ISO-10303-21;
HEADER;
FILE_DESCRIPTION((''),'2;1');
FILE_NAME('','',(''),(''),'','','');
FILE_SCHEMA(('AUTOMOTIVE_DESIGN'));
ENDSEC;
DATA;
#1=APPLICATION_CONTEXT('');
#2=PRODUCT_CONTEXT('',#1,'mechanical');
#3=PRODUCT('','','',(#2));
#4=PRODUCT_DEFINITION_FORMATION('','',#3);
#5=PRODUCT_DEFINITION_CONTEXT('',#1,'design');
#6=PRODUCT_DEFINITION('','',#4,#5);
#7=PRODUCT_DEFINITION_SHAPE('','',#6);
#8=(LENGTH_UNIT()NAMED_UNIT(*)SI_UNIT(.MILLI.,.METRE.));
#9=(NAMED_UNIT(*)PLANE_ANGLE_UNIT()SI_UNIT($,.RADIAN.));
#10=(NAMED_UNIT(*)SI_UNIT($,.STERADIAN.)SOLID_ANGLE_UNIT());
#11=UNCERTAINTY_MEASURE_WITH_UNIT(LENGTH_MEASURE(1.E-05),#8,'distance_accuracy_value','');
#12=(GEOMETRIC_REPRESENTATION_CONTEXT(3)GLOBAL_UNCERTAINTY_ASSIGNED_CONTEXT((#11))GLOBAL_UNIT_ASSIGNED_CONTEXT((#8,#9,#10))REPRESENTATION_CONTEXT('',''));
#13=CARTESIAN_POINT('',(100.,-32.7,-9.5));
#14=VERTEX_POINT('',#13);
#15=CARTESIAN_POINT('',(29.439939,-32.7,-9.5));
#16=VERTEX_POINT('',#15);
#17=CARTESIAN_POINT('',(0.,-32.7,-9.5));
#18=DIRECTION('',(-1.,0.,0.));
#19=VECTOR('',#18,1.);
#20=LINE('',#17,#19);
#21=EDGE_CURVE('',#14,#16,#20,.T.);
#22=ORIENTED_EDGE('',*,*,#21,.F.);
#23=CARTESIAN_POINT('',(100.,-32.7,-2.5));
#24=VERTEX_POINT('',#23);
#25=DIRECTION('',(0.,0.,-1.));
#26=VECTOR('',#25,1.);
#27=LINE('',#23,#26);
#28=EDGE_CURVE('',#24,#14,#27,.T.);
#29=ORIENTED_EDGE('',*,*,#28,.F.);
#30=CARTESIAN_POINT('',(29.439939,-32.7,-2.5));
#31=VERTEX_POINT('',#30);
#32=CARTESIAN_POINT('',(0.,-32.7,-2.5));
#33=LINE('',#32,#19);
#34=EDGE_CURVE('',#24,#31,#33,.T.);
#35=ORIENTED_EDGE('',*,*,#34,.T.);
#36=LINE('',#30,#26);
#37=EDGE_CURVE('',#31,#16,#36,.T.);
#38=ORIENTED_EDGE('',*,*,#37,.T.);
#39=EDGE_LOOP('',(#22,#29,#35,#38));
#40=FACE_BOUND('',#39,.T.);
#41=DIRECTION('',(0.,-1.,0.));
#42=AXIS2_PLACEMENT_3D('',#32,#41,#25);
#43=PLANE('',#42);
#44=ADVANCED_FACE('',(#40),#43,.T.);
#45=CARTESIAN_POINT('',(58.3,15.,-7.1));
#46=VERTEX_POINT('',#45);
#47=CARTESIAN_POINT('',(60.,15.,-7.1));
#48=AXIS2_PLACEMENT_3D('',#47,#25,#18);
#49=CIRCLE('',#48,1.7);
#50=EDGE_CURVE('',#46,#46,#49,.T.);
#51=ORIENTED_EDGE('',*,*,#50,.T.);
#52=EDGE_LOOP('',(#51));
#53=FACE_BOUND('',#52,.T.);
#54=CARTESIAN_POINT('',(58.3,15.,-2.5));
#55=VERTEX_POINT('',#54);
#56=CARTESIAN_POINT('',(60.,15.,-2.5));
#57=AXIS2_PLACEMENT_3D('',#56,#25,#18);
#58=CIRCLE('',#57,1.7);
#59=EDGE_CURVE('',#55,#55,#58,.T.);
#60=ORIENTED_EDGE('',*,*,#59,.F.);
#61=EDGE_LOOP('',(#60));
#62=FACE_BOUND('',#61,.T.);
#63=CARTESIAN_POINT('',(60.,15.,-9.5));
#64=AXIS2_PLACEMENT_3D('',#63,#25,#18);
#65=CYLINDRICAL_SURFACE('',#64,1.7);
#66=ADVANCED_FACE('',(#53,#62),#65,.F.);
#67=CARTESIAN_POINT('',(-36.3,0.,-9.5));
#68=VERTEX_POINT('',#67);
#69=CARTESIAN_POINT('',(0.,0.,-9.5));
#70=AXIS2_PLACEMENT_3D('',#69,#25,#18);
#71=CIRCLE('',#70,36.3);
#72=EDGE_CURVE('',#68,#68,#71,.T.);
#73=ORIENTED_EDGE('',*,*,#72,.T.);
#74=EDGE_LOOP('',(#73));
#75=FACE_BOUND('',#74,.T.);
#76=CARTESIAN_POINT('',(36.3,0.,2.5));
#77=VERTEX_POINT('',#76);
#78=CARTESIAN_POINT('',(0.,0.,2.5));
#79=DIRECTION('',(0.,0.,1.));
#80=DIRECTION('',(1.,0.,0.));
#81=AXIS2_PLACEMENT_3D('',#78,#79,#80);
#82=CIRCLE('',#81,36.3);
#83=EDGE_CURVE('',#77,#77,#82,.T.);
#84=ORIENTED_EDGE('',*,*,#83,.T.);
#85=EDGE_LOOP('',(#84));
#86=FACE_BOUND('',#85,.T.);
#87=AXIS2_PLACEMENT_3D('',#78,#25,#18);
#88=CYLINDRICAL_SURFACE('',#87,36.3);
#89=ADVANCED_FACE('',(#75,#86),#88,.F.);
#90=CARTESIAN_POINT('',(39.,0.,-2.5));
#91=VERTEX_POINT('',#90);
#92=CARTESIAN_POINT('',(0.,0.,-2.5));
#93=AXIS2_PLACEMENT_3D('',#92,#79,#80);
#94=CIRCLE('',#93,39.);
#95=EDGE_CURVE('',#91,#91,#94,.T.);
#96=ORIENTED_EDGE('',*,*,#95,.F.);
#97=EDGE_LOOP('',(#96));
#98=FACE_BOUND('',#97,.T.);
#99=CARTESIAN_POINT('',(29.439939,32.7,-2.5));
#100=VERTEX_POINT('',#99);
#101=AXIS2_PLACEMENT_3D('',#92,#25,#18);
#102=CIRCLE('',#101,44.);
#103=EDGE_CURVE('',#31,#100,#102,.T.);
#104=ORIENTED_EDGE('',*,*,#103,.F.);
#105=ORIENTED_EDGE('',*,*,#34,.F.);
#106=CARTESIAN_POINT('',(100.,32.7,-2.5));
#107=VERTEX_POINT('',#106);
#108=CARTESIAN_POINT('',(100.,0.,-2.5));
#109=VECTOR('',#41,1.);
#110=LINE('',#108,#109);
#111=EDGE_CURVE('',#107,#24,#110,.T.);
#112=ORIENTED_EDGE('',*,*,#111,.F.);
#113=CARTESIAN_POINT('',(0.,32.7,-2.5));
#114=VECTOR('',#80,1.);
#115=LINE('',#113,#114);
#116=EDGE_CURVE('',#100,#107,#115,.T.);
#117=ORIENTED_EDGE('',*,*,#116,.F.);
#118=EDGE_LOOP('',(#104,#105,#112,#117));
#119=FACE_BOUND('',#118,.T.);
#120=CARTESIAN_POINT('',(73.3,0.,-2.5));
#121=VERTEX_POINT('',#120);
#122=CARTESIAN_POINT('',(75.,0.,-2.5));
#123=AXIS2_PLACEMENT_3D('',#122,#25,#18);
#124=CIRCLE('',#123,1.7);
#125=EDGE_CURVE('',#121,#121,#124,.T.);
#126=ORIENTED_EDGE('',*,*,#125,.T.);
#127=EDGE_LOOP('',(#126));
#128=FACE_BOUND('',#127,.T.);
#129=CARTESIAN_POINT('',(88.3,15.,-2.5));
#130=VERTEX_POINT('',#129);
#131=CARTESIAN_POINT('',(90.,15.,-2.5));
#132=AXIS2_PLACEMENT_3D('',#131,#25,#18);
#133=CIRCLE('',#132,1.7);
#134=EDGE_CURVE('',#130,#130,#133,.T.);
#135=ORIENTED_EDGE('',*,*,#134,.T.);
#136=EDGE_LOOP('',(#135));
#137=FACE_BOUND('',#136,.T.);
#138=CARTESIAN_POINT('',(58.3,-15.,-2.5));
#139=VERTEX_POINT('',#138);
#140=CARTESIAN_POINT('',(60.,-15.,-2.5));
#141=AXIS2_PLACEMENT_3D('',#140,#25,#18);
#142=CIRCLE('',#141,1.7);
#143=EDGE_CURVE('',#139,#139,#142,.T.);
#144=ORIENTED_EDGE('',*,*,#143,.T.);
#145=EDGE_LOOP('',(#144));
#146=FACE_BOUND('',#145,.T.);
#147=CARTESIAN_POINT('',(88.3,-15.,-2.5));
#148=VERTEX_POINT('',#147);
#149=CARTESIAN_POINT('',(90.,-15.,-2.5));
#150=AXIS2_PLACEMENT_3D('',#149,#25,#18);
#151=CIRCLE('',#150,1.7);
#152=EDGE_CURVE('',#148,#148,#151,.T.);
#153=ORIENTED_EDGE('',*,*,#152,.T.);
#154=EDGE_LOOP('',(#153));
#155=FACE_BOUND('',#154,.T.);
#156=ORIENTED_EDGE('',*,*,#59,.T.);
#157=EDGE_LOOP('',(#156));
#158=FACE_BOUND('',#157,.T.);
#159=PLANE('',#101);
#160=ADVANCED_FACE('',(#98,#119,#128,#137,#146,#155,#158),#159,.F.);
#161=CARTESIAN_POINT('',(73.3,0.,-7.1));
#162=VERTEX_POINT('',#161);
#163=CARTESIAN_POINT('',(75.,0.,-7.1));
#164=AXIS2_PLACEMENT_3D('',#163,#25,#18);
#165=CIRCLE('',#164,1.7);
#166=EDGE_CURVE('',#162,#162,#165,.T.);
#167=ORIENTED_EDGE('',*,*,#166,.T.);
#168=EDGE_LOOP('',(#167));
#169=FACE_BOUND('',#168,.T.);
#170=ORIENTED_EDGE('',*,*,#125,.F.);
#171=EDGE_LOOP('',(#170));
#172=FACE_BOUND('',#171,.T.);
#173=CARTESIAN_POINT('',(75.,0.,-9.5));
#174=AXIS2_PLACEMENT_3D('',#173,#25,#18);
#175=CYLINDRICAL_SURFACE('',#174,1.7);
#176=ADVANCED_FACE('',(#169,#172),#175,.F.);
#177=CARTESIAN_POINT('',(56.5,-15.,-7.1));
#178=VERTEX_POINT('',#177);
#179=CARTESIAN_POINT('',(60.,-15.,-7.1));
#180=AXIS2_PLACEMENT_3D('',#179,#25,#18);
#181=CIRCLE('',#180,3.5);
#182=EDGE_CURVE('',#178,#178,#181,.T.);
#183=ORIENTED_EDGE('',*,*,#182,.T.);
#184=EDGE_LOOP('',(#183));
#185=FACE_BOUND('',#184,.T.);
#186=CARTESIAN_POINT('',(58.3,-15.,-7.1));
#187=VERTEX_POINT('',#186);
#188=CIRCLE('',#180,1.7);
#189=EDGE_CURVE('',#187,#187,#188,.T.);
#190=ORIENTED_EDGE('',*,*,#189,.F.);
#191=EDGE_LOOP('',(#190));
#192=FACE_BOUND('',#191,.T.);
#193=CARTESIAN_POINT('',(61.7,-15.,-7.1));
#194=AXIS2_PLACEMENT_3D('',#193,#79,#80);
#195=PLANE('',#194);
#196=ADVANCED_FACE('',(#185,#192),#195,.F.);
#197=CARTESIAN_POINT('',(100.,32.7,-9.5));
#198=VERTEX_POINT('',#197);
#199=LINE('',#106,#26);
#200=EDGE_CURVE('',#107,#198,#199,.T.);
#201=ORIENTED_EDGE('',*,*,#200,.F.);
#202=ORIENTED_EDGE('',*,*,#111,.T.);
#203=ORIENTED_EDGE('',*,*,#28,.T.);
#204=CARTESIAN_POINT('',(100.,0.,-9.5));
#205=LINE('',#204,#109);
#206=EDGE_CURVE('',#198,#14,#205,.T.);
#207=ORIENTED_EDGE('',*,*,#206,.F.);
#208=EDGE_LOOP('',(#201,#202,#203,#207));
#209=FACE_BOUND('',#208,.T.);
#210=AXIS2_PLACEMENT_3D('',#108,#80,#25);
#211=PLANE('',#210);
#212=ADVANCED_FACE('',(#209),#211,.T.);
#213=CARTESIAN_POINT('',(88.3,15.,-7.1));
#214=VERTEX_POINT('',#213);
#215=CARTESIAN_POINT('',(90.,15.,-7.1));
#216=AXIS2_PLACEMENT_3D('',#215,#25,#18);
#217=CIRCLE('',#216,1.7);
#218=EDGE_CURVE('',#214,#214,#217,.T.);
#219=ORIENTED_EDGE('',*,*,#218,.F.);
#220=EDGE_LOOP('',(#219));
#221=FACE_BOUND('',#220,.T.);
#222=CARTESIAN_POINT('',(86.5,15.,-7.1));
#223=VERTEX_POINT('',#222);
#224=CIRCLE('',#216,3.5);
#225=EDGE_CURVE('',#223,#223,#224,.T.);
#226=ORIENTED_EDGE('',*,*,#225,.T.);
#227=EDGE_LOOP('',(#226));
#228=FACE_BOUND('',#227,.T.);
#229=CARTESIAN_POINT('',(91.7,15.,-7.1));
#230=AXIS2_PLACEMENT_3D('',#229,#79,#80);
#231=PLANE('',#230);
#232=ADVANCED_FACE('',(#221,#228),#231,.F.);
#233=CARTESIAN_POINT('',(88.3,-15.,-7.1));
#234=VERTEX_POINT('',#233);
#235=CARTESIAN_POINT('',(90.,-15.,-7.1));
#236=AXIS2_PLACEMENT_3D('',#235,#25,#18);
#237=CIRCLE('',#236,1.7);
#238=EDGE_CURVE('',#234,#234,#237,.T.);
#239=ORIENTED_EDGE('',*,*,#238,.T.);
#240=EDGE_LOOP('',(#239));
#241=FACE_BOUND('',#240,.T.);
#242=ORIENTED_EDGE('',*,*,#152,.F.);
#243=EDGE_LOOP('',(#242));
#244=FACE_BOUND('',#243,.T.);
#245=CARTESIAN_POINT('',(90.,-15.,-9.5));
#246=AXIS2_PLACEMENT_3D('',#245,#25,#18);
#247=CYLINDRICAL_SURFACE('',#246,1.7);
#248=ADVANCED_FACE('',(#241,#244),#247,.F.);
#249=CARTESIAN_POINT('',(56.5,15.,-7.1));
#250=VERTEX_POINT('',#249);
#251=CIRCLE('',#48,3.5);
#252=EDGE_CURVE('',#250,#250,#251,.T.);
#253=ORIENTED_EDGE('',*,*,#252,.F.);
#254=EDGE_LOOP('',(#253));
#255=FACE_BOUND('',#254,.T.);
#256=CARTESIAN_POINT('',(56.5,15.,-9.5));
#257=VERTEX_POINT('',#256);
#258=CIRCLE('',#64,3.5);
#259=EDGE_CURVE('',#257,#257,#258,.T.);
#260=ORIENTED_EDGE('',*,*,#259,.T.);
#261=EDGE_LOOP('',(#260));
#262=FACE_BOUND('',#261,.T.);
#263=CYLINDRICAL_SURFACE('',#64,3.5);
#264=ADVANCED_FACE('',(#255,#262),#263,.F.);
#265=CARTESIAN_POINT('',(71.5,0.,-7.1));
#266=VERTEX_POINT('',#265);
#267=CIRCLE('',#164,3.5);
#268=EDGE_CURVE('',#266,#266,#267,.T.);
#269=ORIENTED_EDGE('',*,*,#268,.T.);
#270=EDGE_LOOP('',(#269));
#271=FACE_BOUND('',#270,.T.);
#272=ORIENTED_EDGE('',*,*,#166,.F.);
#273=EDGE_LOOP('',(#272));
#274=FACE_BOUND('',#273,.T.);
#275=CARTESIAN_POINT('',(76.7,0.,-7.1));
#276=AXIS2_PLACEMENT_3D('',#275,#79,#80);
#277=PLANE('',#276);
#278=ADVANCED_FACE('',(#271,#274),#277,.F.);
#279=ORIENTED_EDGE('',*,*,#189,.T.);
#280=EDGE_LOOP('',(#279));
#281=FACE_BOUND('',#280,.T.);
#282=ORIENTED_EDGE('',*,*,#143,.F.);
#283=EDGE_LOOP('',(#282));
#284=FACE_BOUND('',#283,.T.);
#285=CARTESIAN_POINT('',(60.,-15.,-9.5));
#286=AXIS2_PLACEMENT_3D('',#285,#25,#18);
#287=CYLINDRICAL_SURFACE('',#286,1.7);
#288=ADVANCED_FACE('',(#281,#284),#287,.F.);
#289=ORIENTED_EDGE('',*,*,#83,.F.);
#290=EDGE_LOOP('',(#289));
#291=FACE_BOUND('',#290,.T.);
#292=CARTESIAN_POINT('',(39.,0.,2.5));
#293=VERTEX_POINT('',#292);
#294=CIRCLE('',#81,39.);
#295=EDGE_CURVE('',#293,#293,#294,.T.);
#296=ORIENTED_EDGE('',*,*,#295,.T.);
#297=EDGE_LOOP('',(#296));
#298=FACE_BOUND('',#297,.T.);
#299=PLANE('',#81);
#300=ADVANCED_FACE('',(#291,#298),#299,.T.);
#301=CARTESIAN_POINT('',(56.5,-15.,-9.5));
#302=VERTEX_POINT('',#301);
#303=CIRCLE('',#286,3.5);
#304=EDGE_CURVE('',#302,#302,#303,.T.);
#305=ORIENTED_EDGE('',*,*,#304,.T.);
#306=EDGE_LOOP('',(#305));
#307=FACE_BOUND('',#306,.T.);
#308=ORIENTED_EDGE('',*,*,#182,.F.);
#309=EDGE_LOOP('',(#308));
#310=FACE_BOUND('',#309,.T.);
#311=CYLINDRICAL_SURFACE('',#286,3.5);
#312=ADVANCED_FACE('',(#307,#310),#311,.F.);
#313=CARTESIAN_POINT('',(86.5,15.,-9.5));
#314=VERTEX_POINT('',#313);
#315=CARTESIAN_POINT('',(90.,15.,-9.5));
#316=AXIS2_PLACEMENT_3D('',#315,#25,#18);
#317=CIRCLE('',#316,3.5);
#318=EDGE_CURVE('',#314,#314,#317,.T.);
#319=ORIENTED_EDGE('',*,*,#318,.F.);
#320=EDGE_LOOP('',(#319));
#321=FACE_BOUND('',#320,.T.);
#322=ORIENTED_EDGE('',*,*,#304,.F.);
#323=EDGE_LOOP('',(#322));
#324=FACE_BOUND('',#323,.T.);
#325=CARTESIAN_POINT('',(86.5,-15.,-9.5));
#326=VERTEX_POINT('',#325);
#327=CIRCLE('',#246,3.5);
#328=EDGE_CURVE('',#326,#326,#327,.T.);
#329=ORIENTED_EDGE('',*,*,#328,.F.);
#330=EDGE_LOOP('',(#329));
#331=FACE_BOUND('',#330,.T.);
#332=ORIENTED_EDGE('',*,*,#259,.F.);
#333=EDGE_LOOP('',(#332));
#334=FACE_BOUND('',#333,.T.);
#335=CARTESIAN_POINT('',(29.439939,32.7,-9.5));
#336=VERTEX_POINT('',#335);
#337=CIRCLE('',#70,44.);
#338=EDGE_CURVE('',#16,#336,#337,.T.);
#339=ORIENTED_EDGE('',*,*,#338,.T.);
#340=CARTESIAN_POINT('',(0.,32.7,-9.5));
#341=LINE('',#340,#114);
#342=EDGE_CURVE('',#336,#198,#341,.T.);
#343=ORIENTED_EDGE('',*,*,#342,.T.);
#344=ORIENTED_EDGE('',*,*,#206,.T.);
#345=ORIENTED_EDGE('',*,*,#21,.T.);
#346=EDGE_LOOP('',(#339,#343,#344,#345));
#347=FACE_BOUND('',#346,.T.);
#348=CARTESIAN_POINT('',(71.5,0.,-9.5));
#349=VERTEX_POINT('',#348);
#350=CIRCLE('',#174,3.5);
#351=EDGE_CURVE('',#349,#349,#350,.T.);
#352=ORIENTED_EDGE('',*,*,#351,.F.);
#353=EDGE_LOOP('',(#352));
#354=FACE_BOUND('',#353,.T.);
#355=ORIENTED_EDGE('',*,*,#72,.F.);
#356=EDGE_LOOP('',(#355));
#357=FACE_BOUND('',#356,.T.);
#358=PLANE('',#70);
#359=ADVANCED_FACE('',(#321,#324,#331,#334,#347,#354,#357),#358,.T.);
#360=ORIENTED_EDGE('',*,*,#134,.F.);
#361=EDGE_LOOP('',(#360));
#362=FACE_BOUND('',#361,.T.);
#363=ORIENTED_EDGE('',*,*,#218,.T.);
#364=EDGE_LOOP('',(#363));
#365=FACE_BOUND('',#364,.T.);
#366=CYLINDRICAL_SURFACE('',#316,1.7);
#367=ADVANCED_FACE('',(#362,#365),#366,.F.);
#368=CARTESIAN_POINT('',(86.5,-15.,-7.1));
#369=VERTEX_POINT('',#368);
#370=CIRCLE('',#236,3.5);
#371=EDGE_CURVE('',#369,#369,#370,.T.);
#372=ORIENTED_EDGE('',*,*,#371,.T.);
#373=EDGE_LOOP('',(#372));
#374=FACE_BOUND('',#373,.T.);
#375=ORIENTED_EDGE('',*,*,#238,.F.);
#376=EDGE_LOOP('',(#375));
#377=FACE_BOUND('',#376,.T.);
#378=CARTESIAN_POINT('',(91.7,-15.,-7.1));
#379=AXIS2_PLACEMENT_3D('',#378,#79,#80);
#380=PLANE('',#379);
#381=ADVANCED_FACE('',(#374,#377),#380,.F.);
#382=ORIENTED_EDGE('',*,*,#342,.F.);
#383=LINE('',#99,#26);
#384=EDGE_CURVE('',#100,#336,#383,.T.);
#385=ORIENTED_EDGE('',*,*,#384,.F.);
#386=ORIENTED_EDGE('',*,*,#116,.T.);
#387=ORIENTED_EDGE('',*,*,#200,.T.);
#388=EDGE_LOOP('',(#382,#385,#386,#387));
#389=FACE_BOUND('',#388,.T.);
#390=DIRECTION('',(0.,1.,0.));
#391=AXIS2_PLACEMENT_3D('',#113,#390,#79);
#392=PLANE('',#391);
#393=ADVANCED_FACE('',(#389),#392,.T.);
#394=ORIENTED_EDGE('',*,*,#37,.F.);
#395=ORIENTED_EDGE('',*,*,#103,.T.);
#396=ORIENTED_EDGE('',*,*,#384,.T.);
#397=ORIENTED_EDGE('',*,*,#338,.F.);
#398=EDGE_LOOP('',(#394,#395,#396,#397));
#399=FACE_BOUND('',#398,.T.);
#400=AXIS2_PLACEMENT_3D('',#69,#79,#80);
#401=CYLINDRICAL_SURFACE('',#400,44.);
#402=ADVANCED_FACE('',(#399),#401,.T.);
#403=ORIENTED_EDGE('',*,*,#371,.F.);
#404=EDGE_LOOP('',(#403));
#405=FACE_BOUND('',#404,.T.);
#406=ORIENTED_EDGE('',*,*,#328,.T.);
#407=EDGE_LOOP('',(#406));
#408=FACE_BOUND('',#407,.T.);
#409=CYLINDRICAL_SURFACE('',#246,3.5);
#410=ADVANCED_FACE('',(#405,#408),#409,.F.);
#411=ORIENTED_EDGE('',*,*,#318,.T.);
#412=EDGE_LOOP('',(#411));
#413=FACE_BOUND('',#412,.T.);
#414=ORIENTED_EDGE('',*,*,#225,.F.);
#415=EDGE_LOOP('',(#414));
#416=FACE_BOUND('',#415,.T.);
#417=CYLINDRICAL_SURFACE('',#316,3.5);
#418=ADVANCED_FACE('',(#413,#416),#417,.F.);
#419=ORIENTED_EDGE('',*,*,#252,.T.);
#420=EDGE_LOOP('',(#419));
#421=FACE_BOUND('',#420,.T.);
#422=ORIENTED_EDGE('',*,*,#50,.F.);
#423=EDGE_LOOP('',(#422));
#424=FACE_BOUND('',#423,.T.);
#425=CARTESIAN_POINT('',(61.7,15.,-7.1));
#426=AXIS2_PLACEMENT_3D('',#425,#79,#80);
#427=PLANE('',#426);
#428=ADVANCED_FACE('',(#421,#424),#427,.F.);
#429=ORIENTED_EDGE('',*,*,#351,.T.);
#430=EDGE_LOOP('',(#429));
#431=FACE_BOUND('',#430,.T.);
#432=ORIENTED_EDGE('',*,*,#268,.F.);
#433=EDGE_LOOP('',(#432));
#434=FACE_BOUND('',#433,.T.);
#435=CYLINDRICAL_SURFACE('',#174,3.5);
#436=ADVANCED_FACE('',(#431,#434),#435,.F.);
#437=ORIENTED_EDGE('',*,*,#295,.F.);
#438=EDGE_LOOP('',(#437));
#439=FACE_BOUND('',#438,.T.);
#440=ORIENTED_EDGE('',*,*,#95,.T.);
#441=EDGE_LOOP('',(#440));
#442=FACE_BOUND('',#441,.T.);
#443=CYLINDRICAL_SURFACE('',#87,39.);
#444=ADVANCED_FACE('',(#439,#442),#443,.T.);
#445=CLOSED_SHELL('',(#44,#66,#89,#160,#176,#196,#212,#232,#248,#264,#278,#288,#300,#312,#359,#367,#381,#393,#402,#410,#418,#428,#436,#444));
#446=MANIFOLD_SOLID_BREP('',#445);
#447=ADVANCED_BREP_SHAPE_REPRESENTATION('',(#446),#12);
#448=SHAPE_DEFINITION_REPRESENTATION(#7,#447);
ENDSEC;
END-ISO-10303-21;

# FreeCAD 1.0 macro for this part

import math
import FreeCAD as App
import Part
import Sketcher

doc = App.newDocument("Part")
body = doc.addObject("PartDesign::Body", "Body")

sketch1 = body.newObject("Sketcher::SketchObject", "Sketch")
sketch1.AttachmentSupport = (doc.getObject("XY_Plane"), [""])
sketch1.MapMode = "FlatFace"
sketch1.addGeometry([
    Part.Circle(App.Vector(0, 0, 0), App.Vector(0, 0, 1), 39),
    Part.Circle(App.Vector(0, 0, 0), App.Vector(0, 0, 1), 36),
], False)
sketch1.addConstraint([
    Sketcher.Constraint("Coincident", 0, 3, -1, 1),
    Sketcher.Constraint("Coincident", 1, 3, -1, 1),
    Sketcher.Constraint("Diameter", 0, 78.0),
    Sketcher.Constraint("Diameter", 1, 72.6),
])
pad1 = body.newObject("PartDesign::Pad", "Pad")
pad1.Profile = sketch1
pad1.Length = 5
pad1.Midplane = True

sketch2 = body.newObject("Sketcher::SketchObject", "Sketch001")
sketch2.AttachmentSupport = (doc.getObject("XY_Plane"), [""])
sketch2.MapMode = "FlatFace"
sketch2.AttachmentOffset = App.Placement(App.Vector(0, 0, -9.5), App.Rotation())
sketch2.addGeometry([
    Part.Circle(App.Vector(0, 0, 0), App.Vector(0, 0, 1), 44),
    Part.Circle(App.Vector(0, 0, 0), App.Vector(0, 0, 1), 36),
], False)
sketch2.addConstraint([
    Sketcher.Constraint("Coincident", 0, 3, -1, 1),
    Sketcher.Constraint("Coincident", 1, 3, -1, 1),
    Sketcher.Constraint("Diameter", 0, 88.0),
    Sketcher.Constraint("Diameter", 1, 72.6),
])
pad2 = body.newObject("PartDesign::Pad", "Pad001")
pad2.Profile = sketch2
pad2.Length = 7

sketch3 = body.newObject("Sketcher::SketchObject", "Sketch002")
sketch3.AttachmentSupport = (doc.getObject("XY_Plane"), [""])
sketch3.MapMode = "FlatFace"
sketch3.AttachmentOffset = App.Placement(App.Vector(0, 0, -9.5), App.Rotation())
sketch3.addGeometry([
    Part.ArcOfCircle(Part.Circle(App.Vector(0, 0, 0), App.Vector(0, 0, 1), 44), math.radians(-48), math.radians(48)),
    Part.LineSegment(App.Vector(29, 33, 0), App.Vector(100, 33, 0)),
    Part.LineSegment(App.Vector(100, 33, 0), App.Vector(100, -33, 0)),
    Part.LineSegment(App.Vector(100, -33, 0), App.Vector(29, -33, 0)),
], False)
sketch3.addConstraint([
    Sketcher.Constraint("Coincident", 0, 2, 1, 1),
    Sketcher.Constraint("Coincident", 1, 2, 2, 1),
    Sketcher.Constraint("Coincident", 2, 2, 3, 1),
    Sketcher.Constraint("Coincident", 3, 2, 0, 1),
    Sketcher.Constraint("Horizontal", 1),
    Sketcher.Constraint("Vertical", 2),
    Sketcher.Constraint("Horizontal", 3),
    Sketcher.Constraint("Coincident", 0, 3, -1, 1),
    Sketcher.Constraint("Vertical", 0, 2, 3, 2),
    Sketcher.Constraint("Radius", 0, 44.0),
    Sketcher.Constraint("DistanceY", 2, 2, 2, 1, 65.4),
    Sketcher.Constraint("DistanceX", -1, 1, 1, 2, 100.0),
])
pad3 = body.newObject("PartDesign::Pad", "Pad002")
pad3.Profile = sketch3
pad3.Length = 7

sketch4 = body.newObject("Sketcher::SketchObject", "Sketch003")
sketch4.AttachmentSupport = (doc.getObject("XY_Plane"), [""])
sketch4.MapMode = "FlatFace"
sketch4.AttachmentOffset = App.Placement(App.Vector(0, 0, -9.5), App.Rotation())
sketch4.addGeometry([
    Part.Circle(App.Vector(75, 0, 0), App.Vector(0, 0, 1), 1.7),
    Part.Circle(App.Vector(90, 15, 0), App.Vector(0, 0, 1), 1.7),
    Part.Circle(App.Vector(60, -15, 0), App.Vector(0, 0, 1), 1.7),
    Part.Circle(App.Vector(60, 15, 0), App.Vector(0, 0, 1), 1.7),
    Part.Circle(App.Vector(90, -15, 0), App.Vector(0, 0, 1), 1.7),
], False)
sketch4.addConstraint([
    Sketcher.Constraint("Equal", 0, 1),
    Sketcher.Constraint("Equal", 1, 2),
    Sketcher.Constraint("Equal", 2, 3),
    Sketcher.Constraint("Equal", 3, 4),
    Sketcher.Constraint("Symmetric", 2, 3, 3, 3, -1),
    Sketcher.Constraint("Symmetric", 1, 3, 4, 3, -1),
    Sketcher.Constraint("PointOnObject", 0, 3, -1),
    Sketcher.Constraint("Horizontal", 1, 3, 3, 3),
    Sketcher.Constraint("Diameter", 0, 3.4),
    Sketcher.Constraint("DistanceX", -1, 1, 0, 3, 75.0),
    Sketcher.Constraint("DistanceX", -1, 1, 1, 3, 90.0),
    Sketcher.Constraint("DistanceY", -1, 1, 1, 3, 15.0),
    Sketcher.Constraint("DistanceX", -1, 1, 2, 3, 60.0),
])
doc.recompute()
hole = body.newObject("PartDesign::Hole", "Hole")
hole.Profile = sketch4
hole.ThreadType = "None"
hole.Diameter = 3.4
hole.DepthType = "ThroughAll"
hole.HoleCutType = "Counterbore"
hole.HoleCutDiameter = 7
hole.HoleCutDepth = 2.4
hole.Reversed = True

doc.recompute()
